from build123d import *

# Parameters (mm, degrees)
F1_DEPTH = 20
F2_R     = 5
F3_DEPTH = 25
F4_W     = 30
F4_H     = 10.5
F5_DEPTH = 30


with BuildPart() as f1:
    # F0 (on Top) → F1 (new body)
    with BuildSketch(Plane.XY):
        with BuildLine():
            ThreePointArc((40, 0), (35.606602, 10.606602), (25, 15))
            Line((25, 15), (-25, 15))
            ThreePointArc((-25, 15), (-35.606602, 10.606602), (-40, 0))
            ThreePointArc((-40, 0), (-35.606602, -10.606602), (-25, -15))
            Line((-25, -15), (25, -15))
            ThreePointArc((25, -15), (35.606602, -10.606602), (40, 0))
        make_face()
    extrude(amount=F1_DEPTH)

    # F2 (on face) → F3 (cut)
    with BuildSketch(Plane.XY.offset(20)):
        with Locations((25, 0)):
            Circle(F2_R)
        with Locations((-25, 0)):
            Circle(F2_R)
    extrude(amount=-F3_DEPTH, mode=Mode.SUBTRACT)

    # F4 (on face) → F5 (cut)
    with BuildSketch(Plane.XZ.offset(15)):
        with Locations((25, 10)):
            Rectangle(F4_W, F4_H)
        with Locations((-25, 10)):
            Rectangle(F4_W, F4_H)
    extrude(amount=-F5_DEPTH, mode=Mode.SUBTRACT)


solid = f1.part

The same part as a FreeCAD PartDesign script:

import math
import FreeCAD as App
import Part
import Sketcher

doc = App.newDocument("Part")
body = doc.addObject("PartDesign::Body", "Body")

# Sketch on XY plane
sketch1 = body.newObject("Sketcher::SketchObject", "Sketch")
sketch1.AttachmentSupport = (doc.getObject("XY_Plane"), [""])
sketch1.MapMode = "FlatFace"
sketch1.addGeometry([
    Part.ArcOfCircle(Part.Circle(App.Vector(25, 0, 0), App.Vector(0, 0, 1), 15), math.radians(0), math.radians(90)),  # 0
    Part.LineSegment(App.Vector(25, 15, 0), App.Vector(-25, 15, 0)),  # 1
    Part.ArcOfCircle(Part.Circle(App.Vector(-25, 0, 0), App.Vector(0, 0, 1), 15), math.radians(90), math.radians(180)),  # 2
    Part.ArcOfCircle(Part.Circle(App.Vector(-25, 0, 0), App.Vector(0, 0, 1), 15), math.radians(180), math.radians(270)),  # 3
    Part.LineSegment(App.Vector(-25, -15, 0), App.Vector(25, -15, 0)),  # 4
    Part.ArcOfCircle(Part.Circle(App.Vector(25, 0, 0), App.Vector(0, 0, 1), 15), math.radians(-90), math.radians(0)),  # 5
], False)
sketch1.addConstraint([
    Sketcher.Constraint("Tangent", 0, 2, 1, 1),
    Sketcher.Constraint("Tangent", 1, 2, 2, 1),
    Sketcher.Constraint("Tangent", 2, 2, 3, 1),
    Sketcher.Constraint("Tangent", 3, 2, 4, 1),
    Sketcher.Constraint("Tangent", 4, 2, 5, 1),
    Sketcher.Constraint("Tangent", 5, 2, 0, 1),
    Sketcher.Constraint("Horizontal", 1),
    Sketcher.Constraint("Horizontal", 4),
    Sketcher.Constraint("Equal", 0, 2),
    Sketcher.Constraint("Equal", 2, 3),
    Sketcher.Constraint("Symmetric", 0, 3, 2, 3, -1, 1),
    Sketcher.Constraint("PointOnObject", 2, 2, -1),
    Sketcher.Constraint("PointOnObject", 5, 2, -1),
    Sketcher.Constraint("Radius", 0, 14.999999),
    Sketcher.Constraint("DistanceX", 1, 2, 1, 1, 50.0),
])
pad1 = body.newObject("PartDesign::Pad", "Pad")
pad1.Profile = sketch1
pad1.Length = 20

# Sketch on XY plane
sketch2 = body.newObject("Sketcher::SketchObject", "Sketch001")
sketch2.AttachmentSupport = (doc.getObject("XY_Plane"), [""])
sketch2.MapMode = "FlatFace"
sketch2.AttachmentOffset = App.Placement(App.Vector(0, 0, 20), App.Rotation())
sketch2.addGeometry([
    Part.Circle(App.Vector(25, 0, 0), App.Vector(0, 0, 1), 5),
    Part.Circle(App.Vector(-25, 0, 0), App.Vector(0, 0, 1), 5),
], False)
sketch2.addConstraint([
    Sketcher.Constraint("Equal", 0, 1),
    Sketcher.Constraint("Symmetric", 0, 3, 1, 3, -1, 1),
    Sketcher.Constraint("PointOnObject", 0, 3, -1),
    Sketcher.Constraint("Diameter", 0, 10.0),
    Sketcher.Constraint("DistanceX", -1, 1, 0, 3, 25.0),
])
pocket1 = body.newObject("PartDesign::Pocket", "Pocket")
pocket1.Profile = sketch2
pocket1.Length = 25

# Sketch on XZ plane
sketch3 = body.newObject("Sketcher::SketchObject", "Sketch002")
sketch3.AttachmentSupport = (doc.getObject("XZ_Plane"), [""])
sketch3.MapMode = "FlatFace"
sketch3.AttachmentOffset = App.Placement(App.Vector(0, 0, 15), App.Rotation())
sketch3.addGeometry([
    Part.LineSegment(App.Vector(10, 15, 0), App.Vector(10, 5, 0)),  # 0
    Part.LineSegment(App.Vector(10, 5, 0), App.Vector(40, 5, 0)),  # 1
    Part.LineSegment(App.Vector(40, 5, 0), App.Vector(40, 15, 0)),  # 2
    Part.LineSegment(App.Vector(40, 15, 0), App.Vector(10, 15, 0)),  # 3
    Part.LineSegment(App.Vector(-40, 15, 0), App.Vector(-40, 5, 0)),  # 4
    Part.LineSegment(App.Vector(-40, 5, 0), App.Vector(-10, 5, 0)),  # 5
    Part.LineSegment(App.Vector(-10, 5, 0), App.Vector(-10, 15, 0)),  # 6
    Part.LineSegment(App.Vector(-10, 15, 0), App.Vector(-40, 15, 0)),  # 7
], False)
sketch3.addConstraint([
    Sketcher.Constraint("Coincident", 0, 2, 1, 1),
    Sketcher.Constraint("Coincident", 1, 2, 2, 1),
    Sketcher.Constraint("Coincident", 2, 2, 3, 1),
    Sketcher.Constraint("Coincident", 3, 2, 0, 1),
    Sketcher.Constraint("Coincident", 4, 2, 5, 1),
    Sketcher.Constraint("Coincident", 5, 2, 6, 1),
    Sketcher.Constraint("Coincident", 6, 2, 7, 1),
    Sketcher.Constraint("Coincident", 7, 2, 4, 1),
    Sketcher.Constraint("Vertical", 0),
    Sketcher.Constraint("Horizontal", 1),
    Sketcher.Constraint("Vertical", 2),
    Sketcher.Constraint("Horizontal", 3),
    Sketcher.Constraint("Vertical", 4),
    Sketcher.Constraint("Horizontal", 5),
    Sketcher.Constraint("Vertical", 6),
    Sketcher.Constraint("Horizontal", 7),
    Sketcher.Constraint("Symmetric", 1, 2, 4, 2, -2),
    Sketcher.Constraint("Symmetric", 3, 2, 6, 2, -2),
    Sketcher.Constraint("DistanceX", 1, 1, 1, 2, 30.0),
    Sketcher.Constraint("DistanceY", 0, 2, 0, 1, 10.5),
    Sketcher.Constraint("DistanceX", -1, 1, 0, 2, 10.0),
    Sketcher.Constraint("DistanceY", -1, 1, 0, 2, 4.75),
])
pocket2 = body.newObject("PartDesign::Pocket", "Pocket001")
pocket2.Profile = sketch3
pocket2.Length = 30

doc.recompute()
